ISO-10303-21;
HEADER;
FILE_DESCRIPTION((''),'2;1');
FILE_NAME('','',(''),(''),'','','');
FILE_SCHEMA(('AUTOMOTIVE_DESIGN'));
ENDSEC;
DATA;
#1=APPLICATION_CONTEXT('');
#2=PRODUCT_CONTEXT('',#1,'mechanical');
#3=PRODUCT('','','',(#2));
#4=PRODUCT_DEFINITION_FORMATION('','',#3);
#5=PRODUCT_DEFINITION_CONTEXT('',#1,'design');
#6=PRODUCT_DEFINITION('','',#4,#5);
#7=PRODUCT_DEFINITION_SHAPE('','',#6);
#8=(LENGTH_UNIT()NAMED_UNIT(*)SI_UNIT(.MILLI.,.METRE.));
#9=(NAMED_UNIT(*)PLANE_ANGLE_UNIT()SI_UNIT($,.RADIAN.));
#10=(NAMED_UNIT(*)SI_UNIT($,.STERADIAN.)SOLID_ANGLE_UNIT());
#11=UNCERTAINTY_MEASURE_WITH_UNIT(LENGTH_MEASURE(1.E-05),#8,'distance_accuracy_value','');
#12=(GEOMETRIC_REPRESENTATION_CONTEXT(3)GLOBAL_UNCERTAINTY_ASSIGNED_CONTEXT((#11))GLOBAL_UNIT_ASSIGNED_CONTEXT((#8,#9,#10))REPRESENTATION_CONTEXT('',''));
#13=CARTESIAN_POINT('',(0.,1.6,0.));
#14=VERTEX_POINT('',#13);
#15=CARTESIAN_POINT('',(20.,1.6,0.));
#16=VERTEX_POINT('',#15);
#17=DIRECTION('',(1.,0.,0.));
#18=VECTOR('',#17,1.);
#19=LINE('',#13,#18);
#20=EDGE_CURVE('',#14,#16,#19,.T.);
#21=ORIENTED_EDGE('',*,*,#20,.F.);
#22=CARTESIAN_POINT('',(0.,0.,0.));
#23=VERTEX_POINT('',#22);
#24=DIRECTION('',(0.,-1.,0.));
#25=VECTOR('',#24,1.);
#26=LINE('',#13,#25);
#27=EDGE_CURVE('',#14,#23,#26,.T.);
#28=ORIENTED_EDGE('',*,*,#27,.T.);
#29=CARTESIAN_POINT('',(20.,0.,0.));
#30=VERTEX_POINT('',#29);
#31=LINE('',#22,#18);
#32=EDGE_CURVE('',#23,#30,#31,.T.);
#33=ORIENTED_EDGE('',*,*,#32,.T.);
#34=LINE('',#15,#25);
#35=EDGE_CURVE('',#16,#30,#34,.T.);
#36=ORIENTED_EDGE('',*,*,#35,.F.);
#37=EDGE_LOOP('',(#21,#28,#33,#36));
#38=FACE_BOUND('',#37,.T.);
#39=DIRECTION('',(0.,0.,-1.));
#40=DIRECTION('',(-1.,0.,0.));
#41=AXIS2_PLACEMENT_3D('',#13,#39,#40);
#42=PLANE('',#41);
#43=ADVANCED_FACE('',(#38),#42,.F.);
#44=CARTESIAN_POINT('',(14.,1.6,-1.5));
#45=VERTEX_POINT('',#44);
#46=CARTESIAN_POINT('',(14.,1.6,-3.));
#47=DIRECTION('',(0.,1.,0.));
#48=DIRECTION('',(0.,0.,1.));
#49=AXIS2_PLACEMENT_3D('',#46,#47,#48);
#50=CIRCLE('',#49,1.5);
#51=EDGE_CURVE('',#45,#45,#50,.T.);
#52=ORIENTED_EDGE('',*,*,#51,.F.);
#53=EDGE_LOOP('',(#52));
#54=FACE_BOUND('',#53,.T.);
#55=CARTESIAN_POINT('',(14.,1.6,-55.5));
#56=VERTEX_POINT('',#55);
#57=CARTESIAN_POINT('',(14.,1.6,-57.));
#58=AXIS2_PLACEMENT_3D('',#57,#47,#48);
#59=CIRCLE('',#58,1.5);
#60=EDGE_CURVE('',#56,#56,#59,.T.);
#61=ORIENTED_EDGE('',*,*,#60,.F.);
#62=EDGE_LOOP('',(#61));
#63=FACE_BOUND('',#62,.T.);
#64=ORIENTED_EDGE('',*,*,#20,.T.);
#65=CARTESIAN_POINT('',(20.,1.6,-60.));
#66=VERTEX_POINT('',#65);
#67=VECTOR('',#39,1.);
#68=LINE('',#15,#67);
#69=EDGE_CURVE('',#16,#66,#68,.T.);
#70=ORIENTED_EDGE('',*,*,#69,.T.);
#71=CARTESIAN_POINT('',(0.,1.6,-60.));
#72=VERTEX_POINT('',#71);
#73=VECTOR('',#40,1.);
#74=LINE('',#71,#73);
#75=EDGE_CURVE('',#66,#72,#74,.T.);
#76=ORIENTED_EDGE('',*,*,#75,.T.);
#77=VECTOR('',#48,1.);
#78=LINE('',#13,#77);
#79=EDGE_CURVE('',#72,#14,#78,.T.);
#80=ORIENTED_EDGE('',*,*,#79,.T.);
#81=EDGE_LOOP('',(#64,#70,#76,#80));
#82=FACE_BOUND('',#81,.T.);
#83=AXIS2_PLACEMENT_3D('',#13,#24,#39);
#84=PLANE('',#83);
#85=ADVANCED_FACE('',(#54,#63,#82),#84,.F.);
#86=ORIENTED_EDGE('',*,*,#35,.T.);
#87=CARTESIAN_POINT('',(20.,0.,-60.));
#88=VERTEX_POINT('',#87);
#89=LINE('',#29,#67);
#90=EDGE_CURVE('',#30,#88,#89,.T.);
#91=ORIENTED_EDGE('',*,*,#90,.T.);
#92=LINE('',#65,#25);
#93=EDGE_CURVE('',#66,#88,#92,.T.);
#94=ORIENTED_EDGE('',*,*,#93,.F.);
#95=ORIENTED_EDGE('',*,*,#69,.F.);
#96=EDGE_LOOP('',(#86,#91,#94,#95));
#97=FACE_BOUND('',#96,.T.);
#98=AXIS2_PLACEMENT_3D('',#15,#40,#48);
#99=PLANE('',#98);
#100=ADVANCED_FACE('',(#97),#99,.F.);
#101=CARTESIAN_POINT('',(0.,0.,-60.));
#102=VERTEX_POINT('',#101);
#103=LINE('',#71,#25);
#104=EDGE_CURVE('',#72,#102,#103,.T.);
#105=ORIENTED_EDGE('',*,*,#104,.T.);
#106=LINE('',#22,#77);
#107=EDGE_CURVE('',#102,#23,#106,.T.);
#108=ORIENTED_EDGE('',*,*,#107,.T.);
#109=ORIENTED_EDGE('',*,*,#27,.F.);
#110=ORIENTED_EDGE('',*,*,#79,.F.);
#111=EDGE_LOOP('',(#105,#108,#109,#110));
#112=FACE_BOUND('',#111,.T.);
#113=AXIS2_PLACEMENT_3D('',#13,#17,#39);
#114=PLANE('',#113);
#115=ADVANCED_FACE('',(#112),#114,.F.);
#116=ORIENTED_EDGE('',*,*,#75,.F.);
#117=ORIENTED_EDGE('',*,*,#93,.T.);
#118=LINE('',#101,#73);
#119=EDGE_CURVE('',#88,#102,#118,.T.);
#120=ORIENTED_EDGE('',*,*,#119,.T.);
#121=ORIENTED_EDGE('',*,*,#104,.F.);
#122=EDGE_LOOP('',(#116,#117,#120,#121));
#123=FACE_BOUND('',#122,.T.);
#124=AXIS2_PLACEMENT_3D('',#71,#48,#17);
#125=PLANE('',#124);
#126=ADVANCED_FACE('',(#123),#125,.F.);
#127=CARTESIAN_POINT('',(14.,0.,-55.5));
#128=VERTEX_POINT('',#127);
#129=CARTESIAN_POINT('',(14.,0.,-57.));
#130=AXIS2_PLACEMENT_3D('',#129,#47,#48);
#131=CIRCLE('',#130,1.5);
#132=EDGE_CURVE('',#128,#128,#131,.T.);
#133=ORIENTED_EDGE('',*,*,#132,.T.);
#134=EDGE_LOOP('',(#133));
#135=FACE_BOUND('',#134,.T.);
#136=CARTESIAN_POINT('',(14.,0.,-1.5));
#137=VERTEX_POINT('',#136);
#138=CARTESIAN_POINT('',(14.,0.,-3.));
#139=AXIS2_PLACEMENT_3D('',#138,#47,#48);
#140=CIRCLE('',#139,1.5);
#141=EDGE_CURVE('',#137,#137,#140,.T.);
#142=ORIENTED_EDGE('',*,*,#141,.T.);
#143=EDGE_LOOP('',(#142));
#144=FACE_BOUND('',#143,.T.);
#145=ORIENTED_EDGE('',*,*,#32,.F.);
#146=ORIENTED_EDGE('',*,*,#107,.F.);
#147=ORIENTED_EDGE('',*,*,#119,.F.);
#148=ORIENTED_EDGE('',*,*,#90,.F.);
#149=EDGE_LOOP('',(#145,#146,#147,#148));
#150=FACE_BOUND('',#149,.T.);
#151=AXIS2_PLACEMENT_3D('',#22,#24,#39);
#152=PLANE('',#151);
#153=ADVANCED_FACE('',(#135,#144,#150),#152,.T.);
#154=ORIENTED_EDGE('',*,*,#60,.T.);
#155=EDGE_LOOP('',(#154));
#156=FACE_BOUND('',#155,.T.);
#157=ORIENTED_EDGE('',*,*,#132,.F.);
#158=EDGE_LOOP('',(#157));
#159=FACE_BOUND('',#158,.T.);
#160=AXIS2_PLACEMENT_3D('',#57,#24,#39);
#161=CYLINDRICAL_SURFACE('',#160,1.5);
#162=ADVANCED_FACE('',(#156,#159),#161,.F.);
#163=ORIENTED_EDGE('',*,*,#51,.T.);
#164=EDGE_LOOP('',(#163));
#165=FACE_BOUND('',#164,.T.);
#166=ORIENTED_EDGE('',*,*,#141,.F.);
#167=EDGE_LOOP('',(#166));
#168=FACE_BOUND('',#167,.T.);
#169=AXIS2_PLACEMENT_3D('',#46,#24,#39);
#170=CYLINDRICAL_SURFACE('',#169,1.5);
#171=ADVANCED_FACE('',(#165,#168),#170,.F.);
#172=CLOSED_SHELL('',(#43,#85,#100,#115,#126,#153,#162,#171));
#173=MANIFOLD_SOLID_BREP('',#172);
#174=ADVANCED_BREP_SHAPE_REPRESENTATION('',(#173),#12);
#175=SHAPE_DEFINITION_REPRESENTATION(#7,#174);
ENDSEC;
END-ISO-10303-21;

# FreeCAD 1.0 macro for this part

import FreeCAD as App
import Part
import Sketcher
from FreeCAD import Vector

doc = App.newDocument("Part")
params = doc.addObject("Spreadsheet::Sheet", "Params")
for row, (alias, value) in enumerate([
    ("sketch1_diameter", "3 mm"),
    ("sketch1_width", "20 mm"),
    ("sketch1_height", "60 mm"),
    ("pad1_length", "1.6 mm"),
], start=1):
    params.set(f"A{row}", alias)
    params.set(f"B{row}", "=" + value)
    params.setAlias(f"B{row}", alias)

body = doc.addObject("PartDesign::Body", "Body")

sketch1 = doc.addObject("Sketcher::SketchObject", "Sketch")
body.addObject(sketch1)
sketch1.AttachmentSupport = (doc.XZ_Plane, [""])
sketch1.MapMode = "FlatFace"
sketch1.addGeometry(Part.LineSegment(Vector(0, -60, 0), Vector(0, 0, 0)), False)
sketch1.addGeometry(Part.LineSegment(Vector(0, 0, 0), Vector(20, 0, 0)), False)
sketch1.addGeometry(Part.LineSegment(Vector(20, 0, 0), Vector(20, -60, 0)), False)
sketch1.addGeometry(Part.LineSegment(Vector(20, -60, 0), Vector(0, -60, 0)), False)
sketch1.addGeometry(Part.Circle(Vector(14, -3, 0), Vector(0, 0, 1), 1.5), False)
sketch1.addGeometry(Part.Circle(Vector(14, -57, 0), Vector(0, 0, 1), 1.5), False)
sketch1.addConstraint(Sketcher.Constraint("Coincident", 0, 2, 1, 1))
sketch1.addConstraint(Sketcher.Constraint("Coincident", 1, 2, 2, 1))
sketch1.addConstraint(Sketcher.Constraint("Coincident", 2, 2, 3, 1))
sketch1.addConstraint(Sketcher.Constraint("Coincident", 3, 2, 0, 1))
sketch1.addConstraint(Sketcher.Constraint("Vertical", 0))
sketch1.addConstraint(Sketcher.Constraint("Horizontal", 1))
sketch1.addConstraint(Sketcher.Constraint("Vertical", 2))
sketch1.addConstraint(Sketcher.Constraint("Horizontal", 3))
sketch1.addConstraint(Sketcher.Constraint("Coincident", 0, 2, -1, 1))
sketch1.addConstraint(Sketcher.Constraint("Equal", 4, 5))
sketch1.addConstraint(Sketcher.Constraint("Vertical", 4, 3, 5, 3))
sketch1.addConstraint(Sketcher.Constraint("Diameter", 4, 3.0))
sketch1.addConstraint(Sketcher.Constraint("DistanceX", 1, 1, 1, 2, 20.0))
sketch1.addConstraint(Sketcher.Constraint("DistanceY", 0, 1, 0, 2, 60.0))
sketch1.addConstraint(Sketcher.Constraint("DistanceX", -1, 1, 4, 3, 14.0))
sketch1.addConstraint(Sketcher.Constraint("DistanceY", 4, 3, -1, 1, 3.0))
sketch1.addConstraint(Sketcher.Constraint("DistanceY", 5, 3, -1, 1, 57.0))
sketch1.setExpression("Constraints[11]", "Params.sketch1_diameter")
sketch1.setExpression("Constraints[12]", "Params.sketch1_width")
sketch1.setExpression("Constraints[13]", "Params.sketch1_height")
pad1 = doc.addObject("PartDesign::Pad", "Pad")
body.addObject(pad1)
pad1.Profile = sketch1
pad1.setExpression("Length", "Params.pad1_length")
pad1.Reversed = True

doc.recompute()
